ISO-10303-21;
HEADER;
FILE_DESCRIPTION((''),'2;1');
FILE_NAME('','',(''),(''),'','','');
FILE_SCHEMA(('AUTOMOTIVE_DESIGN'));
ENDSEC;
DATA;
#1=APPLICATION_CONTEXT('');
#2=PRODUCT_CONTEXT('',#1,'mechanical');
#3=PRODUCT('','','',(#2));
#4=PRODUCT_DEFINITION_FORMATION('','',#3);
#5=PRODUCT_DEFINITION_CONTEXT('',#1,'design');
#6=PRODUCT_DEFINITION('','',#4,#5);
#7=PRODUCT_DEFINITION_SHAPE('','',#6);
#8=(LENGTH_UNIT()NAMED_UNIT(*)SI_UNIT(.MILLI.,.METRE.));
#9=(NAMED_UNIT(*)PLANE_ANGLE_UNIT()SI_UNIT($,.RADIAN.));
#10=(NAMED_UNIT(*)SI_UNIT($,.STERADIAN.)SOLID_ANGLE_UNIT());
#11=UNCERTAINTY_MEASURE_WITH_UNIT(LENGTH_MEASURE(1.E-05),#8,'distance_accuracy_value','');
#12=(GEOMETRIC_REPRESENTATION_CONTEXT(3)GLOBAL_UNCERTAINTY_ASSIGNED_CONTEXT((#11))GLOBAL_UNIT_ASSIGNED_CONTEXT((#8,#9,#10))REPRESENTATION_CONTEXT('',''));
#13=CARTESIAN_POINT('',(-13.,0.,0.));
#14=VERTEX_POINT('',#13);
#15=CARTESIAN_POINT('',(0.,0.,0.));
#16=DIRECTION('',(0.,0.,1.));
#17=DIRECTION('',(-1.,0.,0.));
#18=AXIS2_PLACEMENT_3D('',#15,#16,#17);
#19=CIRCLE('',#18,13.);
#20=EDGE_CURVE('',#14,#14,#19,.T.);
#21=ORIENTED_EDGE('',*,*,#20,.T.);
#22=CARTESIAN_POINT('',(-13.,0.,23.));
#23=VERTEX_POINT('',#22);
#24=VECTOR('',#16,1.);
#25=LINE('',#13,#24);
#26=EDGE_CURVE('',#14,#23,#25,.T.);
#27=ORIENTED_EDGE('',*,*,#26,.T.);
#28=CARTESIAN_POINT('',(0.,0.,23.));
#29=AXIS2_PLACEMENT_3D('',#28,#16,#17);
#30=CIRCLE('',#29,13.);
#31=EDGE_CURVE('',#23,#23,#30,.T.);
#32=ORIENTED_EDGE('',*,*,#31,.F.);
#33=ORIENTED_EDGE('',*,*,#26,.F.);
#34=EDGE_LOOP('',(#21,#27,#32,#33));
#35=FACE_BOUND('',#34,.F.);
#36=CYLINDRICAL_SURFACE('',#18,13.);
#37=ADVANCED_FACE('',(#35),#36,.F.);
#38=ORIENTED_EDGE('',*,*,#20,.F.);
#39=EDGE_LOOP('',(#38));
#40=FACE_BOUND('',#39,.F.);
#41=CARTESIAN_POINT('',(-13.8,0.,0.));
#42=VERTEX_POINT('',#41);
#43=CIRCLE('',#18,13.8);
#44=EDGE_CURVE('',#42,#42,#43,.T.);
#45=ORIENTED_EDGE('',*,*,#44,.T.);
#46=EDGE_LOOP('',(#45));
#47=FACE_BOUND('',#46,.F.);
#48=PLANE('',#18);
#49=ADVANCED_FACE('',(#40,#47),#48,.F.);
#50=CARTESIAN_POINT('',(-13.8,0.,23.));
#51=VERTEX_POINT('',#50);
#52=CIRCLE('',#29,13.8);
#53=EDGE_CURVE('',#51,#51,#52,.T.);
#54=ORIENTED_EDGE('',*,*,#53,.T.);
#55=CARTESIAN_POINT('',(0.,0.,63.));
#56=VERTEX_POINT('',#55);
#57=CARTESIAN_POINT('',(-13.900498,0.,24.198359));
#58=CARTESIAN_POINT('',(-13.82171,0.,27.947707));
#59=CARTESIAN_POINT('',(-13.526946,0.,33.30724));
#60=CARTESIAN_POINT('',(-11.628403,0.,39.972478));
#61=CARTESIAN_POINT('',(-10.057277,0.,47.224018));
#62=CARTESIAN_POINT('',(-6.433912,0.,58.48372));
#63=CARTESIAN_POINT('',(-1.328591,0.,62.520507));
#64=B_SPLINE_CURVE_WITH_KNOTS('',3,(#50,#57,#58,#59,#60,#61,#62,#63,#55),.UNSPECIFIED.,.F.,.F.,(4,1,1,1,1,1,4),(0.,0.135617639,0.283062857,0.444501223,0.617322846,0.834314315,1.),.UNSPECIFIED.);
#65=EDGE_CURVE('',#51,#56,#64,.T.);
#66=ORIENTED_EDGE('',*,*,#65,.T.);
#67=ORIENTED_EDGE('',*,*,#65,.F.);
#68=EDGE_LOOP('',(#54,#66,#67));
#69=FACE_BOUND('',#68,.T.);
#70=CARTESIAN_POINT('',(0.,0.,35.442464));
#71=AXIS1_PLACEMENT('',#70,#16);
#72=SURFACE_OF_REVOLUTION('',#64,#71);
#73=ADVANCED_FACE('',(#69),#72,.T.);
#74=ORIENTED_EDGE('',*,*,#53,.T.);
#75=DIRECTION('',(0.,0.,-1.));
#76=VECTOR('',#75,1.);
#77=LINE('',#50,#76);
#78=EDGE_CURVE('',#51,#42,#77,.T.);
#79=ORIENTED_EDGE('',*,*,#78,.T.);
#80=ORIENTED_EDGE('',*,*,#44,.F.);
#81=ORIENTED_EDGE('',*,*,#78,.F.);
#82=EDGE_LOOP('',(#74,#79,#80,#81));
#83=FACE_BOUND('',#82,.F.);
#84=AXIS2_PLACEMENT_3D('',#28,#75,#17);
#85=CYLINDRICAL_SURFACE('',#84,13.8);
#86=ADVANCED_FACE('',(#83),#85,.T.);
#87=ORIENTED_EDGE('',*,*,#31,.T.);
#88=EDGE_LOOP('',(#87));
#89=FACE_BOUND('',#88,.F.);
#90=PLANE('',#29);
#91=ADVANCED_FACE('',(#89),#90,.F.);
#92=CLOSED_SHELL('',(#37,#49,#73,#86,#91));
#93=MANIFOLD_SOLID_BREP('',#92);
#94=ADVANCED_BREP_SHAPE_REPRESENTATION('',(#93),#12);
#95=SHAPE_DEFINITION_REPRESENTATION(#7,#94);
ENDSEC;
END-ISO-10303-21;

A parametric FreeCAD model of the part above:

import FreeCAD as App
import Part
import Sketcher

V = App.Vector
Q = App.Units.Quantity

doc = App.newDocument("Part")
body = doc.addObject("PartDesign::Body", "Body")

sketch1 = doc.addObject("Sketcher::SketchObject", "Sketch")
body.addObject(sketch1)
sketch1.AttachmentSupport = (doc.XZ_Plane, [""])
sketch1.MapMode = "FlatFace"
sketch1.addGeometry([
    Part.LineSegment(V(-13.8, 0, 0), V(-13, 0, 0)),
    Part.LineSegment(V(-13, 0, 0), V(-13, 23, 0)),
    Part.LineSegment(V(-13, 23, 0), V(0, 23, 0)),
    Part.LineSegment(V(0, 23, 0), V(0, 63, 0)),
    Part.BSplineCurve([V(-13.8, 23, 0), V(-13.900498, 24.198359, 0), V(-13.82171, 27.947707, 0), V(-13.526946, 33.30724, 0), V(-11.628403, 39.972478, 0), V(-10.057277, 47.224018, 0), V(-6.433912, 58.48372, 0), V(-1.328591, 62.520507, 0), V(0, 63, 0)], [4, 1, 1, 1, 1, 1, 4], [0, 0.135617639, 0.283062857, 0.444501223, 0.617322846, 0.834314315, 1], False, 3, [1, 1, 1, 1, 1, 1, 1, 1, 1], False),
    Part.LineSegment(V(-13.8, 23, 0), V(-13.8, 0, 0)),
], False)
sketch1.addConstraint([
    Sketcher.Constraint("Block", 4),
    Sketcher.Constraint("Coincident", 0, 2, 1, 1),
    Sketcher.Constraint("Coincident", 1, 2, 2, 1),
    Sketcher.Constraint("Coincident", 2, 2, 3, 1),
    Sketcher.Constraint("Coincident", 3, 2, 4, 2),
    Sketcher.Constraint("Coincident", 4, 1, 5, 1),
    Sketcher.Constraint("Coincident", 5, 2, 0, 1),
    Sketcher.Constraint("Horizontal", 0),
    Sketcher.Constraint("Vertical", 1),
    Sketcher.Constraint("Horizontal", 2),
    Sketcher.Constraint("Vertical", 3),
    Sketcher.Constraint("Vertical", 5),
    Sketcher.Constraint("PointOnObject", 0, 2, -1),
    Sketcher.Constraint("Equal", 1, 5),
    Sketcher.Constraint("DistanceX", 2, 1, 2, 2, Q("13 mm")),
])
revolution = doc.addObject("PartDesign::Revolution", "Revolution")
body.addObject(revolution)
revolution.Profile = sketch1
revolution.ReferenceAxis = (sketch1, ["V_Axis"])
revolution.Angle = 360

doc.recompute()
